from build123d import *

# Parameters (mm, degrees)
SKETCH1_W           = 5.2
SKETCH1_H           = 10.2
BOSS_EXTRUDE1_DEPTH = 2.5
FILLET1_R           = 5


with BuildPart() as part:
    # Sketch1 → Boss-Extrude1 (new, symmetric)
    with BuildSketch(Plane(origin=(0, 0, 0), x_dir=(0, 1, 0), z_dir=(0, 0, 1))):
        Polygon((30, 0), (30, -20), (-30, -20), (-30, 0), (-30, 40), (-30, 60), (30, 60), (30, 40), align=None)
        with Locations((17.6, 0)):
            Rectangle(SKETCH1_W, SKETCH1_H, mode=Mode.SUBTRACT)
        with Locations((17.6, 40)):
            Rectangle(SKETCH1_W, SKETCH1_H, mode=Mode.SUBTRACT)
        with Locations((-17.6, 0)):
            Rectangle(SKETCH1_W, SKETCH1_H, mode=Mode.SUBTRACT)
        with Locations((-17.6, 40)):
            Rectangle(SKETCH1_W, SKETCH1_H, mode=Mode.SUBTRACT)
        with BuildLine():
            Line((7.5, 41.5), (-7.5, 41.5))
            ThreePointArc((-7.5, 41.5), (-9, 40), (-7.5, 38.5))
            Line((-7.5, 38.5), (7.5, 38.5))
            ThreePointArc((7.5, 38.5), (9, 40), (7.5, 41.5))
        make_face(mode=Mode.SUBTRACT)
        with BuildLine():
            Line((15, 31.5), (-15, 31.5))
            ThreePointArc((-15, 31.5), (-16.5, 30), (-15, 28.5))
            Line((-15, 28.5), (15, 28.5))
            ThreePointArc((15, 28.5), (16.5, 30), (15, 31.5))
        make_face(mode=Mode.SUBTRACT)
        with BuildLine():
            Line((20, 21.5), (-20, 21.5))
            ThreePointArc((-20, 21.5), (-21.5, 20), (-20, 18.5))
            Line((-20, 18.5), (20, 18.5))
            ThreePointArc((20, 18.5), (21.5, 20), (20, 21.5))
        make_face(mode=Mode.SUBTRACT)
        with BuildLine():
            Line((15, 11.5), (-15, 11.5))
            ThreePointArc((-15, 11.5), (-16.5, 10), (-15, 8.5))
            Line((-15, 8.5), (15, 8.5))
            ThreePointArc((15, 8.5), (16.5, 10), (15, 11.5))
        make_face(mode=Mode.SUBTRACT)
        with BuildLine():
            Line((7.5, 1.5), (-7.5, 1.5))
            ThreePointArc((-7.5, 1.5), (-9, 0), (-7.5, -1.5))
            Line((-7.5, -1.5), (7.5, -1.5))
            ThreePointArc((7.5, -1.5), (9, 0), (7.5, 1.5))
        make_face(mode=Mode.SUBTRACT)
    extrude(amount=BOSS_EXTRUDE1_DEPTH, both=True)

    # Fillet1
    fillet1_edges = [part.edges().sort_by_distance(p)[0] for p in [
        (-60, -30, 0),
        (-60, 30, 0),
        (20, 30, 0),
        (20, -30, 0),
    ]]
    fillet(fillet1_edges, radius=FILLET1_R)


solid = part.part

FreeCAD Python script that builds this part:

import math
import FreeCAD as App
import Part
import Sketcher

V = App.Vector


def edges_at(feature, points):
    """Names of the edges that pass closest to the given points."""
    edges = feature.Shape.Edges
    near = lambda p: min(range(len(edges)), key=lambda i: edges[i].distToShape(Part.Vertex(*p))[0])
    return sorted({f"Edge{near(p) + 1}" for p in points})


def add_polygon(sketch, points):
    """Adds a closed chain of lines whose ends are joined by coincident constraints."""
    first, n = sketch.GeometryCount, len(points)
    for a, b in zip(points, points[1:] + points[:1]):
        sketch.addGeometry(Part.LineSegment(App.Vector(*a, 0), App.Vector(*b, 0)), False)
    for i in range(n):
        sketch.addConstraint(Sketcher.Constraint("Coincident", first + i, 2, first + (i + 1) % n, 1))

doc = App.newDocument("Part")
body = doc.addObject("PartDesign::Body", "Body")

# Sketch on XY plane
sketch1 = body.newObject("Sketcher::SketchObject", "Sketch")
sketch1.AttachmentSupport = (doc.getObject("XY_Plane"), [""])
sketch1.MapMode = "FlatFace"
add_polygon(sketch1, [(20, 30), (-60, 30), (-60, -30), (20, -30)])  # lines 0-3
add_polygon(sketch1, [(5.1, 15), (-5.1, 15), (-5.1, 20.2), (5.1, 20.2)])  # lines 4-7
sketch1.addGeometry(Part.ArcOfCircle(Part.Circle(V(0, 7.5, 0), V(0, 0, 1), 1.5), math.radians(0), math.radians(180)), False)  # 8
sketch1.addGeometry(Part.LineSegment(V(1.5, 7.5, 0), V(1.5, -7.5, 0)), False)  # 9
sketch1.addGeometry(Part.ArcOfCircle(Part.Circle(V(0, -7.5, 0), V(0, 0, 1), 1.5), math.radians(180), math.radians(360)), False)  # 10
sketch1.addGeometry(Part.LineSegment(V(-1.5, -7.5, 0), V(-1.5, 7.5, 0)), False)  # 11
add_polygon(sketch1, [(5.1, -20.2), (-5.1, -20.2), (-5.1, -15), (5.1, -15)])  # lines 12-15
sketch1.addGeometry(Part.ArcOfCircle(Part.Circle(V(-10, 15, 0), V(0, 0, 1), 1.5), math.radians(0), math.radians(180)), False)  # 16
sketch1.addGeometry(Part.LineSegment(V(-8.5, 15, 0), V(-8.5, -15, 0)), False)  # 17
sketch1.addGeometry(Part.ArcOfCircle(Part.Circle(V(-10, -15, 0), V(0, 0, 1), 1.5), math.radians(180), math.radians(360)), False)  # 18
sketch1.addGeometry(Part.LineSegment(V(-11.5, -15, 0), V(-11.5, 15, 0)), False)  # 19
add_polygon(sketch1, [(-34.9, 15), (-45.1, 15), (-45.1, 20.2), (-34.9, 20.2)])  # lines 20-23
sketch1.addGeometry(Part.ArcOfCircle(Part.Circle(V(-20, 20, 0), V(0, 0, 1), 1.5), math.radians(0), math.radians(180)), False)  # 24
sketch1.addGeometry(Part.LineSegment(V(-18.5, 20, 0), V(-18.5, -20, 0)), False)  # 25
sketch1.addGeometry(Part.ArcOfCircle(Part.Circle(V(-20, -20, 0), V(0, 0, 1), 1.5), math.radians(180), math.radians(360)), False)  # 26
sketch1.addGeometry(Part.LineSegment(V(-21.5, -20, 0), V(-21.5, 20, 0)), False)  # 27
sketch1.addGeometry(Part.ArcOfCircle(Part.Circle(V(-30, 15, 0), V(0, 0, 1), 1.5), math.radians(0), math.radians(180)), False)  # 28
sketch1.addGeometry(Part.LineSegment(V(-28.5, 15, 0), V(-28.5, -15, 0)), False)  # 29
sketch1.addGeometry(Part.ArcOfCircle(Part.Circle(V(-30, -15, 0), V(0, 0, 1), 1.5), math.radians(180), math.radians(360)), False)  # 30
sketch1.addGeometry(Part.LineSegment(V(-31.5, -15, 0), V(-31.5, 15, 0)), False)  # 31
sketch1.addGeometry(Part.ArcOfCircle(Part.Circle(V(-40, 7.5, 0), V(0, 0, 1), 1.5), math.radians(0), math.radians(180)), False)  # 32
sketch1.addGeometry(Part.LineSegment(V(-38.5, 7.5, 0), V(-38.5, -7.5, 0)), False)  # 33
sketch1.addGeometry(Part.ArcOfCircle(Part.Circle(V(-40, -7.5, 0), V(0, 0, 1), 1.5), math.radians(180), math.radians(360)), False)  # 34
sketch1.addGeometry(Part.LineSegment(V(-41.5, -7.5, 0), V(-41.5, 7.5, 0)), False)  # 35
add_polygon(sketch1, [(-34.9, -20.2), (-45.1, -20.2), (-45.1, -15), (-34.9, -15)])  # lines 36-39
sketch1.addConstraint(Sketcher.Constraint("Tangent", 8, 1, 9, 1))
sketch1.addConstraint(Sketcher.Constraint("Tangent", 9, 2, 10, 2))
sketch1.addConstraint(Sketcher.Constraint("Tangent", 10, 1, 11, 1))
sketch1.addConstraint(Sketcher.Constraint("Tangent", 11, 2, 8, 2))
sketch1.addConstraint(Sketcher.Constraint("Tangent", 16, 1, 17, 1))
sketch1.addConstraint(Sketcher.Constraint("Tangent", 17, 2, 18, 2))
sketch1.addConstraint(Sketcher.Constraint("Tangent", 18, 1, 19, 1))
sketch1.addConstraint(Sketcher.Constraint("Tangent", 19, 2, 16, 2))
sketch1.addConstraint(Sketcher.Constraint("Tangent", 24, 1, 25, 1))
sketch1.addConstraint(Sketcher.Constraint("Tangent", 25, 2, 26, 2))
sketch1.addConstraint(Sketcher.Constraint("Tangent", 26, 1, 27, 1))
sketch1.addConstraint(Sketcher.Constraint("Tangent", 27, 2, 24, 2))
sketch1.addConstraint(Sketcher.Constraint("Tangent", 28, 1, 29, 1))
sketch1.addConstraint(Sketcher.Constraint("Tangent", 29, 2, 30, 2))
sketch1.addConstraint(Sketcher.Constraint("Tangent", 30, 1, 31, 1))
sketch1.addConstraint(Sketcher.Constraint("Tangent", 31, 2, 28, 2))
sketch1.addConstraint(Sketcher.Constraint("Tangent", 32, 1, 33, 1))
sketch1.addConstraint(Sketcher.Constraint("Tangent", 33, 2, 34, 2))
sketch1.addConstraint(Sketcher.Constraint("Tangent", 34, 1, 35, 1))
sketch1.addConstraint(Sketcher.Constraint("Tangent", 35, 2, 32, 2))
sketch1.addConstraint(Sketcher.Constraint("Horizontal", 0))
sketch1.addConstraint(Sketcher.Constraint("Vertical", 1))
sketch1.addConstraint(Sketcher.Constraint("Horizontal", 2))
sketch1.addConstraint(Sketcher.Constraint("Vertical", 3))
sketch1.addConstraint(Sketcher.Constraint("Horizontal", 4))
sketch1.addConstraint(Sketcher.Constraint("Vertical", 5))
sketch1.addConstraint(Sketcher.Constraint("Horizontal", 6))
sketch1.addConstraint(Sketcher.Constraint("Vertical", 7))
sketch1.addConstraint(Sketcher.Constraint("Vertical", 9))
sketch1.addConstraint(Sketcher.Constraint("Vertical", 11))
sketch1.addConstraint(Sketcher.Constraint("Horizontal", 12))
sketch1.addConstraint(Sketcher.Constraint("Vertical", 13))
sketch1.addConstraint(Sketcher.Constraint("Horizontal", 14))
sketch1.addConstraint(Sketcher.Constraint("Vertical", 15))
sketch1.addConstraint(Sketcher.Constraint("Vertical", 17))
sketch1.addConstraint(Sketcher.Constraint("Vertical", 19))
sketch1.addConstraint(Sketcher.Constraint("Horizontal", 20))
sketch1.addConstraint(Sketcher.Constraint("Vertical", 21))
sketch1.addConstraint(Sketcher.Constraint("Horizontal", 22))
sketch1.addConstraint(Sketcher.Constraint("Vertical", 23))
sketch1.addConstraint(Sketcher.Constraint("Vertical", 25))
sketch1.addConstraint(Sketcher.Constraint("Vertical", 27))
sketch1.addConstraint(Sketcher.Constraint("Vertical", 29))
sketch1.addConstraint(Sketcher.Constraint("Vertical", 31))
sketch1.addConstraint(Sketcher.Constraint("Vertical", 33))
sketch1.addConstraint(Sketcher.Constraint("Vertical", 35))
sketch1.addConstraint(Sketcher.Constraint("Horizontal", 36))
sketch1.addConstraint(Sketcher.Constraint("Vertical", 37))
sketch1.addConstraint(Sketcher.Constraint("Horizontal", 38))
sketch1.addConstraint(Sketcher.Constraint("Vertical", 39))
sketch1.addConstraint(Sketcher.Constraint("Equal", 10, 16))
sketch1.addConstraint(Sketcher.Constraint("Equal", 18, 24))
sketch1.addConstraint(Sketcher.Constraint("Equal", 26, 28))
sketch1.addConstraint(Sketcher.Constraint("Equal", 30, 32))
sketch1.addConstraint(Sketcher.Constraint("Symmetric", 8, 3, 10, 3, -1, 1))
sketch1.addConstraint(Sketcher.Constraint("Symmetric", 6, 2, 12, 2, -1, 1))
sketch1.addConstraint(Sketcher.Constraint("Symmetric", 4, 2, 14, 2, -1, 1))
sketch1.addConstraint(Sketcher.Constraint("Symmetric", 21, 2, 36, 2, -1))
sketch1.addConstraint(Sketcher.Constraint("Symmetric", 23, 2, 38, 2, -1))
sketch1.addConstraint(Sketcher.Constraint("Horizontal", 16, 3, 28, 3))
sketch1.addConstraint(Sketcher.Constraint("Horizontal", 18, 3, 30, 3))
sketch1.addConstraint(Sketcher.Constraint("Horizontal", 8, 3, 32, 3))
sketch1.addConstraint(Sketcher.Constraint("Horizontal", 10, 3, 34, 3))
sketch1.addConstraint(Sketcher.Constraint("Horizontal", 28, 3, 4, 2))
sketch1.addConstraint(Sketcher.Constraint("Horizontal", 30, 3, 13, 2))
sketch1.addConstraint(Sketcher.Constraint("Horizontal", 19, 2, 20, 2))
sketch1.addConstraint(Sketcher.Constraint("Horizontal", 6, 2, 21, 2))
sketch1.addConstraint(Sketcher.Constraint("Vertical", 5, 2, 12, 2))
sketch1.addConstraint(Sketcher.Constraint("Equal", 14, 20))
sketch1.addConstraint(Sketcher.Constraint("Radius", 8, 1.5))
sketch1.addConstraint(Sketcher.Constraint("DistanceX", 0, 2, 0, 1, 80.0))
sketch1.addConstraint(Sketcher.Constraint("DistanceY", 1, 2, 1, 1, 60.0))
sketch1.addConstraint(Sketcher.Constraint("DistanceY", 9, 2, 9, 1, 15.0))
sketch1.addConstraint(Sketcher.Constraint("DistanceY", 17, 2, 17, 1, 30.0))
sketch1.addConstraint(Sketcher.Constraint("DistanceY", 25, 2, 25, 1, 40.0))
sketch1.addConstraint(Sketcher.Constraint("DistanceX", 4, 2, 4, 1, 10.2))
sketch1.addConstraint(Sketcher.Constraint("DistanceY", 5, 1, 5, 2, 5.2))
sketch1.addConstraint(Sketcher.Constraint("DistanceX", 16, 3, -1, 1, 10.0))
sketch1.addConstraint(Sketcher.Constraint("DistanceX", 24, 3, -1, 1, 20.0))
sketch1.addConstraint(Sketcher.Constraint("DistanceY", -1, 1, 24, 3, 20.0))
sketch1.addConstraint(Sketcher.Constraint("DistanceX", 28, 3, -1, 1, 30.0))
sketch1.addConstraint(Sketcher.Constraint("DistanceX", 32, 3, -1, 1, 40.0))
sketch1.addConstraint(Sketcher.Constraint("DistanceX", 0, 2, -1, 1, 60.0))
sketch1.addConstraint(Sketcher.Constraint("DistanceY", -1, 1, 0, 2, 30.0))
sketch1.addConstraint(Sketcher.Constraint("DistanceX", 20, 2, -1, 1, 45.1))
pad1 = body.newObject("PartDesign::Pad", "Pad")
pad1.Profile = sketch1
pad1.Length = 5
pad1.Midplane = True
doc.recompute()

fillet = body.newObject("PartDesign::Fillet", "Fillet")
fillet.Base = (pad1, edges_at(pad1, [
    (-60, -30, 0),
    (-60, 30, 0),
    (20, 30, 0),
    (20, -30, 0),
]))
fillet.Radius = 5

doc.recompute()
